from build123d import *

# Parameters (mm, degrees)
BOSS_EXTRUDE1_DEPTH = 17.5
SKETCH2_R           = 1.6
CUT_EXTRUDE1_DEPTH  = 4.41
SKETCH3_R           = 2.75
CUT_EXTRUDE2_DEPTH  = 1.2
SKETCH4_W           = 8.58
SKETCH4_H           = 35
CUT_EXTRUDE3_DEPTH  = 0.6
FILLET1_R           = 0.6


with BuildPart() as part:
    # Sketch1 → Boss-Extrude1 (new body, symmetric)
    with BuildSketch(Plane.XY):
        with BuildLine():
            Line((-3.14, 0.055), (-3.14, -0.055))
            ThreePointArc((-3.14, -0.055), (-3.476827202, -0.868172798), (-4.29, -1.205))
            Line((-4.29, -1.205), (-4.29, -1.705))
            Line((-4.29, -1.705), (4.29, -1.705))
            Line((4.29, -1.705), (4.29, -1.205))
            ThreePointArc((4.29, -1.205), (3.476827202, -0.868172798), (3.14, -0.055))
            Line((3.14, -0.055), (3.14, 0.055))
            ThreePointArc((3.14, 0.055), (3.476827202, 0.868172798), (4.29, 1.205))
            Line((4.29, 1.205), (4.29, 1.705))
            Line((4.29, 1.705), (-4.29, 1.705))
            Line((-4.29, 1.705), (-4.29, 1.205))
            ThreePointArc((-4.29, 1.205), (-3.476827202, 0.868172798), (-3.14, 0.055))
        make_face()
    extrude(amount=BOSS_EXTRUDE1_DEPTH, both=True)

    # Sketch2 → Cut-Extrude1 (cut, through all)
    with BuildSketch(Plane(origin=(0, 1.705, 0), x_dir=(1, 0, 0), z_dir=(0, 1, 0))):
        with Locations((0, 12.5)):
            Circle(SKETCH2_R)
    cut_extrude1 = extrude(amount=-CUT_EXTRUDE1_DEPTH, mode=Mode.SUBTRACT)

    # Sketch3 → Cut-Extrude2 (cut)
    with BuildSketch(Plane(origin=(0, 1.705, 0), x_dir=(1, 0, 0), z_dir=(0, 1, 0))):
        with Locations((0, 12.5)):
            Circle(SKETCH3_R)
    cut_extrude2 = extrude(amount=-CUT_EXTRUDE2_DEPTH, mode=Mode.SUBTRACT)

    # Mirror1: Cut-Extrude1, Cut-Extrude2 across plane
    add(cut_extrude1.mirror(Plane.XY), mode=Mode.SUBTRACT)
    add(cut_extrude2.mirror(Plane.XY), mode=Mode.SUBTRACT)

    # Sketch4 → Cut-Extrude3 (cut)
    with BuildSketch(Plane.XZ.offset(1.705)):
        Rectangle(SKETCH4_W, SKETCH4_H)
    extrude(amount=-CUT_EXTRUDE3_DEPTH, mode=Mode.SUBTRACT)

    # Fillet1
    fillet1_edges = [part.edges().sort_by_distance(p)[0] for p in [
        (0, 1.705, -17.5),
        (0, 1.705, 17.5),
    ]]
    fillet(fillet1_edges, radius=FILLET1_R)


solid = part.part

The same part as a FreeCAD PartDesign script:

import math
import FreeCAD as App
import Part
import Sketcher
from FreeCAD import Vector
Q = App.Units.Quantity


def edges_at(feature, points):
    """Names of the edges that pass closest to the given points."""
    edges = feature.Shape.Edges
    near = lambda p: min(range(len(edges)), key=lambda i: edges[i].distToShape(Part.Vertex(*p))[0])
    return sorted({f"Edge{near(p) + 1}" for p in points})


def add_polygon(sketch, points):
    """Adds a closed chain of lines whose ends are joined by coincident constraints."""
    first, n = sketch.GeometryCount, len(points)
    for a, b in zip(points, points[1:] + points[:1]):
        sketch.addGeometry(Part.LineSegment(App.Vector(*a, 0), App.Vector(*b, 0)), False)
    for i in range(n):
        sketch.addConstraint(Sketcher.Constraint("Coincident", first + i, 2, first + (i + 1) % n, 1))

doc = App.newDocument("Part")
body = doc.addObject("PartDesign::Body", "Body")

# Sketch on XY plane
sketch1 = body.newObject("Sketcher::SketchObject", "Sketch")
sketch1.AttachmentSupport = (doc.getObject("XY_Plane"), [""])
sketch1.MapMode = "FlatFace"
sketch1.addGeometry(Part.LineSegment(Vector(-3.14, 0.06, 0), Vector(-3.14, -0.06, 0)), False)
sketch1.addGeometry(Part.ArcOfCircle(Part.Circle(Vector(-4.29, -0.05, 0), Vector(0, 0, 1), 1.15), math.radians(-90), math.radians(0)), False)
sketch1.addGeometry(Part.LineSegment(Vector(-4.29, -1.21, 0), Vector(-4.29, -1.71, 0)), False)
sketch1.addGeometry(Part.LineSegment(Vector(-4.29, -1.71, 0), Vector(4.29, -1.71, 0)), False)
sketch1.addGeometry(Part.LineSegment(Vector(4.29, -1.71, 0), Vector(4.29, -1.21, 0)), False)
sketch1.addGeometry(Part.ArcOfCircle(Part.Circle(Vector(4.29, -0.05, 0), Vector(0, 0, 1), 1.15), math.radians(-180), math.radians(-90)), False)
sketch1.addGeometry(Part.LineSegment(Vector(3.14, -0.06, 0), Vector(3.14, 0.06, 0)), False)
sketch1.addGeometry(Part.ArcOfCircle(Part.Circle(Vector(4.29, 0.05, 0), Vector(0, 0, 1), 1.15), math.radians(90), math.radians(180)), False)
sketch1.addGeometry(Part.LineSegment(Vector(4.29, 1.21, 0), Vector(4.29, 1.71, 0)), False)
sketch1.addGeometry(Part.LineSegment(Vector(4.29, 1.71, 0), Vector(-4.29, 1.71, 0)), False)
sketch1.addGeometry(Part.LineSegment(Vector(-4.29, 1.71, 0), Vector(-4.29, 1.21, 0)), False)
sketch1.addGeometry(Part.ArcOfCircle(Part.Circle(Vector(-4.29, 0.05, 0), Vector(0, 0, 1), 1.15), math.radians(0), math.radians(90)), False)
sketch1.addConstraint(Sketcher.Constraint("Tangent", 0, 2, 1, 2))
sketch1.addConstraint(Sketcher.Constraint("Coincident", 1, 1, 2, 1))
sketch1.addConstraint(Sketcher.Constraint("Coincident", 2, 2, 3, 1))
sketch1.addConstraint(Sketcher.Constraint("Coincident", 3, 2, 4, 1))
sketch1.addConstraint(Sketcher.Constraint("Coincident", 4, 2, 5, 2))
sketch1.addConstraint(Sketcher.Constraint("Tangent", 5, 1, 6, 1))
sketch1.addConstraint(Sketcher.Constraint("Tangent", 6, 2, 7, 2))
sketch1.addConstraint(Sketcher.Constraint("Coincident", 7, 1, 8, 1))
sketch1.addConstraint(Sketcher.Constraint("Coincident", 8, 2, 9, 1))
sketch1.addConstraint(Sketcher.Constraint("Coincident", 9, 2, 10, 1))
sketch1.addConstraint(Sketcher.Constraint("Coincident", 10, 2, 11, 2))
sketch1.addConstraint(Sketcher.Constraint("Tangent", 11, 1, 0, 1))
sketch1.addConstraint(Sketcher.Constraint("Vertical", 0))
sketch1.addConstraint(Sketcher.Constraint("Vertical", 2))
sketch1.addConstraint(Sketcher.Constraint("Horizontal", 3))
sketch1.addConstraint(Sketcher.Constraint("Vertical", 4))
sketch1.addConstraint(Sketcher.Constraint("Vertical", 6))
sketch1.addConstraint(Sketcher.Constraint("Vertical", 8))
sketch1.addConstraint(Sketcher.Constraint("Horizontal", 9))
sketch1.addConstraint(Sketcher.Constraint("Vertical", 10))
sketch1.addConstraint(Sketcher.Constraint("Equal", 1, 5))
sketch1.addConstraint(Sketcher.Constraint("Equal", 5, 7))
sketch1.addConstraint(Sketcher.Constraint("Equal", 7, 11))
sketch1.addConstraint(Sketcher.Constraint("Symmetric", 1, 3, 7, 3, -1, 1))
sketch1.addConstraint(Sketcher.Constraint("Symmetric", 2, 2, 8, 2, -1, 1))
sketch1.addConstraint(Sketcher.Constraint("Symmetric", 4, 2, 10, 2, -1, 1))
sketch1.addConstraint(Sketcher.Constraint("Symmetric", 1, 1, 4, 2, -2))
sketch1.addConstraint(Sketcher.Constraint("Vertical", 11, 3, 1, 1))
sketch1.addConstraint(Sketcher.Constraint("Radius", 1, Q("1.15 mm")))
sketch1.addConstraint(Sketcher.Constraint("DistanceY", 2, 2, 2, 1, Q("0.5 mm")))
sketch1.addConstraint(Sketcher.Constraint("DistanceX", 3, 1, 3, 2, Q("8.58 mm")))
sketch1.addConstraint(Sketcher.Constraint("DistanceY", 0, 2, 0, 1, Q("0.11 mm")))
pad1 = body.newObject("PartDesign::Pad", "Pad")
pad1.Profile = sketch1
pad1.Length = 35
pad1.Midplane = True

# Sketch on XZ plane
sketch2 = body.newObject("Sketcher::SketchObject", "Sketch001")
sketch2.AttachmentSupport = (doc.getObject("XZ_Plane"), [""])
sketch2.MapMode = "FlatFace"
sketch2.AttachmentOffset = App.Placement(Vector(0, 0, -1.705), App.Rotation())
sketch2.addGeometry(Part.Circle(Vector(0, -12.5, 0), Vector(0, 0, 1), 1.6), False)
sketch2.addConstraint(Sketcher.Constraint("PointOnObject", 0, 3, -2))
sketch2.addConstraint(Sketcher.Constraint("Diameter", 0, Q("3.2 mm")))
sketch2.addConstraint(Sketcher.Constraint("DistanceY", 0, 3, -1, 1, Q("12.5 mm")))
pocket1 = body.newObject("PartDesign::Pocket", "Pocket")
pocket1.Profile = sketch2
pocket1.Type = "ThroughAll"
pocket1.Reversed = True

# Sketch on XZ plane
sketch3 = body.newObject("Sketcher::SketchObject", "Sketch002")
sketch3.AttachmentSupport = (doc.getObject("XZ_Plane"), [""])
sketch3.MapMode = "FlatFace"
sketch3.AttachmentOffset = App.Placement(Vector(0, 0, -1.705), App.Rotation())
sketch3.addGeometry(Part.Circle(Vector(0, -12.5, 0), Vector(0, 0, 1), 2.8), False)
sketch3.addConstraint(Sketcher.Constraint("PointOnObject", 0, 3, -2))
sketch3.addConstraint(Sketcher.Constraint("Diameter", 0, Q("5.5 mm")))
sketch3.addConstraint(Sketcher.Constraint("DistanceY", 0, 3, -1, 1, Q("12.5 mm")))
pocket2 = body.newObject("PartDesign::Pocket", "Pocket001")
pocket2.Profile = sketch3
pocket2.Length = 1.2
pocket2.Reversed = True
doc.recompute()

mirrored = body.newObject("PartDesign::Mirrored", "Mirrored")
mirrored.Originals = [pocket1, pocket2]
mirrored.MirrorPlane = (doc.getObject("XY_Plane"), [""])
body.Tip = mirrored

# Sketch on XZ plane
sketch4 = body.newObject("Sketcher::SketchObject", "Sketch003")
sketch4.AttachmentSupport = (doc.getObject("XZ_Plane"), [""])
sketch4.MapMode = "FlatFace"
sketch4.AttachmentOffset = App.Placement(Vector(0, 0, 1.705), App.Rotation())
add_polygon(sketch4, [(-4, 18), (-4, -18), (4, -18), (4, 18)])  # lines 0-3
sketch4.addConstraint(Sketcher.Constraint("Vertical", 0))
sketch4.addConstraint(Sketcher.Constraint("Horizontal", 1))
sketch4.addConstraint(Sketcher.Constraint("Vertical", 2))
sketch4.addConstraint(Sketcher.Constraint("Horizontal", 3))
sketch4.addConstraint(Sketcher.Constraint("Symmetric", 0, 2, 2, 2, -1, 1))
sketch4.addConstraint(Sketcher.Constraint("DistanceY", 0, 2, 0, 1, Q("35 mm")))
sketch4.addConstraint(Sketcher.Constraint("DistanceX", 1, 1, 1, 2, Q("8.58 mm")))
pocket3 = body.newObject("PartDesign::Pocket", "Pocket002")
pocket3.Profile = sketch4
pocket3.Length = 0.6
doc.recompute()

fillet = body.newObject("PartDesign::Fillet", "Fillet")
fillet.Base = (pocket3, edges_at(pocket3, [(0, 1.705, -17.5), (0, 1.705, 17.5)]))
fillet.Radius = 0.6

doc.recompute()
